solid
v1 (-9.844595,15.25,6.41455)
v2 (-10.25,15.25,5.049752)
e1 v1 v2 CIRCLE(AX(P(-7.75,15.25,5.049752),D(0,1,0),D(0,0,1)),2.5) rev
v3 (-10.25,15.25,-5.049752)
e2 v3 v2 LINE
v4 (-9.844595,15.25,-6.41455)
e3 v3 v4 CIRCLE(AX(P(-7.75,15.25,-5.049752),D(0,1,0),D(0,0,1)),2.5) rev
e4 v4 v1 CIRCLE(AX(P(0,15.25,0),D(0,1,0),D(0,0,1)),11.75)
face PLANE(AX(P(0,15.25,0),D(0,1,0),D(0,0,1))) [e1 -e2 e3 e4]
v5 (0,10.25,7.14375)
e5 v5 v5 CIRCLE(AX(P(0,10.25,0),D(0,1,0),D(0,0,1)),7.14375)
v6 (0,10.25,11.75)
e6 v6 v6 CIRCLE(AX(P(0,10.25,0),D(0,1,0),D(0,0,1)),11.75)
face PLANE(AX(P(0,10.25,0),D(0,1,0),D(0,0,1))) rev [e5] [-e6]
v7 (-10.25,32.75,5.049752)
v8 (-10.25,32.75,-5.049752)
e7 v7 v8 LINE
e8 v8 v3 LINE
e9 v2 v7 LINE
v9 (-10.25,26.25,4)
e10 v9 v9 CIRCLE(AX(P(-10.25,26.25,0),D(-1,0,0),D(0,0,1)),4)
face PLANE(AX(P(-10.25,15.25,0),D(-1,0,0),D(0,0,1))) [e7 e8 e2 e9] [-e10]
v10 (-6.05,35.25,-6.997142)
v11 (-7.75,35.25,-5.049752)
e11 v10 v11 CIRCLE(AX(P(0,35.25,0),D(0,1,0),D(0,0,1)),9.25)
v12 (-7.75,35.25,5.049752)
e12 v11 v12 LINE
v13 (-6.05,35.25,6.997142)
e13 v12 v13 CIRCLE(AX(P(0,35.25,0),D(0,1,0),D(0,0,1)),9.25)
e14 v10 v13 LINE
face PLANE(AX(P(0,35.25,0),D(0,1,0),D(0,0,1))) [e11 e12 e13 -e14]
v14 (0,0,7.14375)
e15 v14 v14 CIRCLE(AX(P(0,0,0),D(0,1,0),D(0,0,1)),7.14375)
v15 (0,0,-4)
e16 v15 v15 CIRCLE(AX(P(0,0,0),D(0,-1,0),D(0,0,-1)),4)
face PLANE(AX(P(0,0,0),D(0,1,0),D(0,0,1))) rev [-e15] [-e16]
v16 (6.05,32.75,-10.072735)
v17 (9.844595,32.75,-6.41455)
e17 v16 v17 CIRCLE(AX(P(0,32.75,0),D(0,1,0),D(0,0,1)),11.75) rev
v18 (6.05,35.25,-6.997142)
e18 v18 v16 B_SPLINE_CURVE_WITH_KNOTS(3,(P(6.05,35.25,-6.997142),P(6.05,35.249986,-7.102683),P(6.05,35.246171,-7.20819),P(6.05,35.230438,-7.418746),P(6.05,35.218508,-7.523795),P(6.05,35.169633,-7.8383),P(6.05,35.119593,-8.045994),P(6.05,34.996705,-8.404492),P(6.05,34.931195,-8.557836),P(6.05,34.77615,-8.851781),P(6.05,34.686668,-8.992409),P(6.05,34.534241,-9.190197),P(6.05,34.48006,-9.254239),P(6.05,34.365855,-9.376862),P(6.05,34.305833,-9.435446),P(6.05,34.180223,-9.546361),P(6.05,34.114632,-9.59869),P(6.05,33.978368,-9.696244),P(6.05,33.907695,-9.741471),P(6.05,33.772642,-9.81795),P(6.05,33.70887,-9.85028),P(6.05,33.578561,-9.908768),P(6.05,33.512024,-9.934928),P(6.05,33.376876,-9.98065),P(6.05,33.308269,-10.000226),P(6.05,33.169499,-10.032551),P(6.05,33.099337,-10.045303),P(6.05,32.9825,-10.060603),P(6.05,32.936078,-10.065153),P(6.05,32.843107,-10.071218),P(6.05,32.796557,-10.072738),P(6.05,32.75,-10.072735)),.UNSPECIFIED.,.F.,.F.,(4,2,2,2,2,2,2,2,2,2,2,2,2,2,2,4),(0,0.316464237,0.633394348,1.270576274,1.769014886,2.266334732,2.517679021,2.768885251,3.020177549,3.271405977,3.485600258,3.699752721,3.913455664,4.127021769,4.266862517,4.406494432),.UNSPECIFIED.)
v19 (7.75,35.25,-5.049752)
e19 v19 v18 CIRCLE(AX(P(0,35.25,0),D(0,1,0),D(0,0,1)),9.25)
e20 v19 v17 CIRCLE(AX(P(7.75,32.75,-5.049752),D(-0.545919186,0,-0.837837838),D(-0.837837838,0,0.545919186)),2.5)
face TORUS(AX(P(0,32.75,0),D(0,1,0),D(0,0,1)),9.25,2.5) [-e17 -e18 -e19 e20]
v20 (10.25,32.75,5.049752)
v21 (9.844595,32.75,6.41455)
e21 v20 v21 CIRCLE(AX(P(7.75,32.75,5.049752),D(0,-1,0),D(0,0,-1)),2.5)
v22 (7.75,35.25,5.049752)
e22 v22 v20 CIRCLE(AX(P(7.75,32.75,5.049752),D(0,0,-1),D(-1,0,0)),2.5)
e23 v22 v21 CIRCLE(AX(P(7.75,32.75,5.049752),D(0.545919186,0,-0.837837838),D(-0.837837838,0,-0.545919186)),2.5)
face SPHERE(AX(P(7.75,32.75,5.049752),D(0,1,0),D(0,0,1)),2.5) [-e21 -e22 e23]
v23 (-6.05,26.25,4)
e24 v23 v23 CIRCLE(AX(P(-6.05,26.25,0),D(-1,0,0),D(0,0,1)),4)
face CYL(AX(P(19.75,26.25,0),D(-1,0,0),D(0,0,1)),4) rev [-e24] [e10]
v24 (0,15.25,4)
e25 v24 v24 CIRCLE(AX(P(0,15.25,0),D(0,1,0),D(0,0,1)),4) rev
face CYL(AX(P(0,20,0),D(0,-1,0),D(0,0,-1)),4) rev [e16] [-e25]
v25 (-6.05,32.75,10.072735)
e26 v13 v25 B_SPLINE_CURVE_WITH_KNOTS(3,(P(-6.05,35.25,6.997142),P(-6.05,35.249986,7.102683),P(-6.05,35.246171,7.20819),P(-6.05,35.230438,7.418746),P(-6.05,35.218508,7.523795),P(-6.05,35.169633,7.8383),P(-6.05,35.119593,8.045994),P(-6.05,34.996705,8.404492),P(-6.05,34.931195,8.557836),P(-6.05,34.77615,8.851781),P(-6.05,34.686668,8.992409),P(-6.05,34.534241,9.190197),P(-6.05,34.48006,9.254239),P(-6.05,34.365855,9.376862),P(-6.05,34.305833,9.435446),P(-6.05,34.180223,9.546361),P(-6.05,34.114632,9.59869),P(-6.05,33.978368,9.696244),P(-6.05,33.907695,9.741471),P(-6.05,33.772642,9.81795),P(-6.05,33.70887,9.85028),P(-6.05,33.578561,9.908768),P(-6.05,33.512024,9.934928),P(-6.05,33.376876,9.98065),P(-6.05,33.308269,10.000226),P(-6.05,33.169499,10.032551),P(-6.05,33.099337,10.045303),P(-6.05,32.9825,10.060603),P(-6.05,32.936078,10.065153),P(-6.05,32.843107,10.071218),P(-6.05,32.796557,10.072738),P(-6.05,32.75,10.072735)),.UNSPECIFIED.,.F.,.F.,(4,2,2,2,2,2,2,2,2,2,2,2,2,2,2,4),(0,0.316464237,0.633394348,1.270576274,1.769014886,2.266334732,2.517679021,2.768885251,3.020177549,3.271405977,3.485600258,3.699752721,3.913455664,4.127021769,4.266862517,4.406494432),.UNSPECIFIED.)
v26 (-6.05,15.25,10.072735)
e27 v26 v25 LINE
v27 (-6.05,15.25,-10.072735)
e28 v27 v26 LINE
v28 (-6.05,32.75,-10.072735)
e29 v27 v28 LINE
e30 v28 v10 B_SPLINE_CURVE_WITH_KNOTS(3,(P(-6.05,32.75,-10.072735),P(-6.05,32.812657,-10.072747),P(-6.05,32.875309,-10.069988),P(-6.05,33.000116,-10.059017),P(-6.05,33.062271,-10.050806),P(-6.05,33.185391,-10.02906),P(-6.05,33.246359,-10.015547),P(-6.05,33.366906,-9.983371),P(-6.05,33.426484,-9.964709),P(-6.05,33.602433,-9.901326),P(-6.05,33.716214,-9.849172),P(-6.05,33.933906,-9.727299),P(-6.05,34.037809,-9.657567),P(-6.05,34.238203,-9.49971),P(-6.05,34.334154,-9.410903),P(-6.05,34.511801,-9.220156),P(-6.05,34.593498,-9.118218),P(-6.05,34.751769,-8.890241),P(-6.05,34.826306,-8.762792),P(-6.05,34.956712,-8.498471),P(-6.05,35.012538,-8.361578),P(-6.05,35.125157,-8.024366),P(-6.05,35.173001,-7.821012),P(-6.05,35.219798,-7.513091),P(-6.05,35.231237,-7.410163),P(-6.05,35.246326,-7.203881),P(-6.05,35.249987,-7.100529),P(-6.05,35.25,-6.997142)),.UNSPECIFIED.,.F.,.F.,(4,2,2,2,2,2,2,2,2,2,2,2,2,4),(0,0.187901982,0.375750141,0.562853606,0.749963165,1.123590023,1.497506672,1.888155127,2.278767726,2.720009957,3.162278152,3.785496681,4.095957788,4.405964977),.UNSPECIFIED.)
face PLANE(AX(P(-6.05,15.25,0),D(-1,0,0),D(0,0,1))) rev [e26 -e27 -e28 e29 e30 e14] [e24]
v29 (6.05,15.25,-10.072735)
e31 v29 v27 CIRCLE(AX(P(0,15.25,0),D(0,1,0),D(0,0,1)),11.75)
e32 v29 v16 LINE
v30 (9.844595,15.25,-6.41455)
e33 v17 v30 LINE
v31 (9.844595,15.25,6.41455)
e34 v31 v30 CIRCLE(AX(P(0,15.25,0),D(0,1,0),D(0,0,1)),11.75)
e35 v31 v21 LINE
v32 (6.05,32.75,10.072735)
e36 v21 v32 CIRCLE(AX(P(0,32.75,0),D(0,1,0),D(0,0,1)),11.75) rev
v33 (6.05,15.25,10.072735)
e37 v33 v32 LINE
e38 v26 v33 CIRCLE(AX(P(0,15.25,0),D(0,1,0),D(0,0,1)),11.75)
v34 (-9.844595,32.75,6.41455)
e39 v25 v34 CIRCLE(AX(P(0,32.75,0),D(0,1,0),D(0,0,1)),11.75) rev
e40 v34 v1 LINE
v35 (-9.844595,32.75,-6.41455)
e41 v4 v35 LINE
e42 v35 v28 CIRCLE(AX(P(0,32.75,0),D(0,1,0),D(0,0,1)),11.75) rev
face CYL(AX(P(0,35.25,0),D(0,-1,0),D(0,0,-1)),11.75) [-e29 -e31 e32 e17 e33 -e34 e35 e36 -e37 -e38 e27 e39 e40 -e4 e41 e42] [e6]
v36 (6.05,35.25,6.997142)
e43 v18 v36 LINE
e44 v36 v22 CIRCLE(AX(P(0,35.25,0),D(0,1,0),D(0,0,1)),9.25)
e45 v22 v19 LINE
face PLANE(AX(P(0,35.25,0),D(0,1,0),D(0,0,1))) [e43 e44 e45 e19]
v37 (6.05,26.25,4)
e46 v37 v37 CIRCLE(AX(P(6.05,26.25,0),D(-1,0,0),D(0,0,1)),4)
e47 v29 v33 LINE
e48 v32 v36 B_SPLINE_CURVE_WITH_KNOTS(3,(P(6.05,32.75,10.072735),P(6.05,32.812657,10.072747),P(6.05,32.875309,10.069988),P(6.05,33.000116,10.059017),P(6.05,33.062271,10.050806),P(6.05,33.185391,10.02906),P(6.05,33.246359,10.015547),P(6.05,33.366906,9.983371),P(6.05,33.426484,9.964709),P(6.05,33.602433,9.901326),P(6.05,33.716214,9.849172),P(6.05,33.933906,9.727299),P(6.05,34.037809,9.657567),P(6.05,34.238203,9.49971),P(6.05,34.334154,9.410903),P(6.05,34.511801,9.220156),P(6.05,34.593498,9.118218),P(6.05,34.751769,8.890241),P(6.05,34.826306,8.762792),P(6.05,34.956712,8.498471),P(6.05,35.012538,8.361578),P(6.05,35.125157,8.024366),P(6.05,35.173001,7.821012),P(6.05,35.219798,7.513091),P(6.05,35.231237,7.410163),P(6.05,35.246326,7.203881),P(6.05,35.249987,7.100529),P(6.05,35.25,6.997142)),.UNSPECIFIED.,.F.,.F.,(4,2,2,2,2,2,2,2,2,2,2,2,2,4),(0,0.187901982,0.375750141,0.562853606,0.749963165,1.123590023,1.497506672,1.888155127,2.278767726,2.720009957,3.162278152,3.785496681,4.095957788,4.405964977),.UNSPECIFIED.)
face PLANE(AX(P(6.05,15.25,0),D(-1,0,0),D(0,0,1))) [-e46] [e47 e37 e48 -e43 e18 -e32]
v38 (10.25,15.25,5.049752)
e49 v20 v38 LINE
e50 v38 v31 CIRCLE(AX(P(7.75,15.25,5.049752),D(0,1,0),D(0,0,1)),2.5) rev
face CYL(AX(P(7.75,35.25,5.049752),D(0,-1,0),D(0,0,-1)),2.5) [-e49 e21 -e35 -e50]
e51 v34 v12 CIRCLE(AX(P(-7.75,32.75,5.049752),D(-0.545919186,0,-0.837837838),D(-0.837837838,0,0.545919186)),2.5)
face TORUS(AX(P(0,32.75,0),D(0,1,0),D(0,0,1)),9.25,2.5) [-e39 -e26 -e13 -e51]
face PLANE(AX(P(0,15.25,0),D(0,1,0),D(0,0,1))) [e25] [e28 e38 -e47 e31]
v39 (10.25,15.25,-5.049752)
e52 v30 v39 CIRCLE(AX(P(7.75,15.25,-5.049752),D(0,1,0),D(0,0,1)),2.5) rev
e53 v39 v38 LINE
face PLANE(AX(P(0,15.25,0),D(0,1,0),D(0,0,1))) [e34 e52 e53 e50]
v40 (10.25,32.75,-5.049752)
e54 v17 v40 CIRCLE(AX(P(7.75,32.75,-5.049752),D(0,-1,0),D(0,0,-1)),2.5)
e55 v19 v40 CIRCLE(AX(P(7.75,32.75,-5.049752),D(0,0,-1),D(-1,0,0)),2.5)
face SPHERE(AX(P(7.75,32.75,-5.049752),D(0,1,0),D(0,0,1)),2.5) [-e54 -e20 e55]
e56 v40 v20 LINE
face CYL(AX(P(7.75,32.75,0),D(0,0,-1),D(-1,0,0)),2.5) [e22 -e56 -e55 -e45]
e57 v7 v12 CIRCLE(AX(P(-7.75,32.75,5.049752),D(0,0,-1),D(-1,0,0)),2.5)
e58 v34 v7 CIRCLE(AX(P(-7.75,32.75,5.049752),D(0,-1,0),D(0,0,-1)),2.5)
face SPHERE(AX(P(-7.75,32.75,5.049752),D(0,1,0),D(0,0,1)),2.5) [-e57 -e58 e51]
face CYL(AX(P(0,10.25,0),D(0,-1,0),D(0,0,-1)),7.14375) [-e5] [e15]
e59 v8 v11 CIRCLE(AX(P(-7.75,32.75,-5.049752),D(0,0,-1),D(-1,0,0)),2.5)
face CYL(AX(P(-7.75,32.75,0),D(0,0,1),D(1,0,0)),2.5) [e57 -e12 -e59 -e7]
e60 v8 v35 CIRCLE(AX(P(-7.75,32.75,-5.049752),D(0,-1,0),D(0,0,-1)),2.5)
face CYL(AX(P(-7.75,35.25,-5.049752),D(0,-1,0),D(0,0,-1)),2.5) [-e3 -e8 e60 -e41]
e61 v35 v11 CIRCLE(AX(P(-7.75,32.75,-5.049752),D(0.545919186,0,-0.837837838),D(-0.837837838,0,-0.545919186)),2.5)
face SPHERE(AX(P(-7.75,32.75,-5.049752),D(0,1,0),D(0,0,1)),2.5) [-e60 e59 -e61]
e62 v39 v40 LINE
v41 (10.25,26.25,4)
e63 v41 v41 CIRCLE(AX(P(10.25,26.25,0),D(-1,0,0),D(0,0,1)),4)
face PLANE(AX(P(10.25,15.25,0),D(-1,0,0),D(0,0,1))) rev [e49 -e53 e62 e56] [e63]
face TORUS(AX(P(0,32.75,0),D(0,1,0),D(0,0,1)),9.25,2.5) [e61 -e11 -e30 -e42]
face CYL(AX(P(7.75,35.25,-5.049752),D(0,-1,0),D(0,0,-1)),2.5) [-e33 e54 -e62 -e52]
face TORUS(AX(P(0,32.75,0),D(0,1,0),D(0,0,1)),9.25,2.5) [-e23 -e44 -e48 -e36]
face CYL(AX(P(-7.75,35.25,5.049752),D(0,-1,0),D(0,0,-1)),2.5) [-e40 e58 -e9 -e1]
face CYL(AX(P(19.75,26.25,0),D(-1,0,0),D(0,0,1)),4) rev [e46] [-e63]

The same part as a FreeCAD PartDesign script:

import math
import FreeCAD as App
import Part
import Sketcher


def edges_at(feature, points):
    """Names of the edges that pass closest to the given points."""
    edges = feature.Shape.Edges
    near = lambda p: min(range(len(edges)), key=lambda i: edges[i].distToShape(Part.Vertex(*p))[0])
    return sorted({f"Edge{near(p) + 1}" for p in points})

doc = App.newDocument("Part")
params = doc.addObject("Spreadsheet::Sheet", "Params")
for row, (alias, value) in enumerate([
    ("pad1_length", "10.25 mm"),
    ("sketch2_diameter", "23.5 mm"),
    ("pad2_length", "25 mm"),
    ("sketch3_diameter", "8 mm"),
    ("pocket1_length", "20 mm"),
    ("sketch4_radius", "11.75 mm"),
    ("pocket2_length", "20 mm"),
    ("sketch5_diameter", "8 mm"),
    ("pocket3_length", "30 mm"),
    ("fillet_radius", "2.5 mm"),
    ("fillet2_radius", "2.5 mm"),
], start=1):
    params.set(f"A{row}", alias)
    params.set(f"B{row}", "=" + value)
    params.setAlias(f"B{row}", alias)

body = doc.addObject("PartDesign::Body", "Body")

sketch1 = body.newObject("Sketcher::SketchObject", "Sketch")
sketch1.AttachmentSupport = (doc.getObject("XZ_Plane"), [""])
sketch1.MapMode = "FlatFace"
sketch1.addGeometry(Part.Circle(App.Vector(0, 0, 0), App.Vector(0, 0, 1), 7.14375), False)
sketch1.addConstraint([
    Sketcher.Constraint("Coincident", 0, 3, -1, 1),
    Sketcher.Constraint("Diameter", 0, 14.2875),
])
pad1 = body.newObject("PartDesign::Pad", "Pad")
pad1.Profile = sketch1
pad1.setExpression("Length", "Params.pad1_length")
pad1.Reversed = True

sketch2 = body.newObject("Sketcher::SketchObject", "Sketch001")
sketch2.AttachmentSupport = (doc.getObject("XZ_Plane"), [""])
sketch2.MapMode = "FlatFace"
sketch2.AttachmentOffset = App.Placement(App.Vector(0, 0, -10.25), App.Rotation())
sketch2.addGeometry(Part.Circle(App.Vector(0, 0, 0), App.Vector(0, 0, 1), 11.75), False)
sketch2.addConstraint([
    Sketcher.Constraint("Coincident", 0, 3, -1, 1),
    Sketcher.Constraint("Diameter", 0, 23.5),
])
sketch2.setExpression("Constraints[1]", "Params.sketch2_diameter")
pad2 = body.newObject("PartDesign::Pad", "Pad001")
pad2.Profile = sketch2
pad2.setExpression("Length", "Params.pad2_length")
pad2.Reversed = True

sketch3 = body.newObject("Sketcher::SketchObject", "Sketch002")
sketch3.AttachmentSupport = (doc.getObject("XZ_Plane"), [""])
sketch3.MapMode = "FlatFace"
sketch3.addGeometry(Part.Circle(App.Vector(0, 0, 0), App.Vector(0, 0, 1), 4), False)
sketch3.addConstraint([
    Sketcher.Constraint("Coincident", 0, 3, -1, 1),
    Sketcher.Constraint("Diameter", 0, 8.0),
])
sketch3.setExpression("Constraints[1]", "Params.sketch3_diameter")
pocket1 = body.newObject("PartDesign::Pocket", "Pocket")
pocket1.Profile = sketch3
pocket1.setExpression("Length", "Params.pocket1_length")

sketch4 = body.newObject("Sketcher::SketchObject", "Sketch003")
sketch4.AttachmentSupport = (doc.getObject("XZ_Plane"), [""])
sketch4.MapMode = "FlatFace"
sketch4.AttachmentOffset = App.Placement(App.Vector(0, 0, -15.25), App.Rotation())
sketch4.addGeometry([
    Part.ArcOfCircle(Part.Circle(App.Vector(0, 0, 0), App.Vector(0, 0, 1), 11.75), math.radians(-120.990344), math.radians(-59.009656)),
    Part.LineSegment(App.Vector(-6.05, -10.072735, 0), App.Vector(-6.05, 10.072735, 0)),
    Part.ArcOfCircle(Part.Circle(App.Vector(0, 0, 0), App.Vector(0, 0, 1), 11.75), math.radians(59.009656), math.radians(120.990344)),
    Part.LineSegment(App.Vector(6.05, 10.072735, 0), App.Vector(6.05, -10.072735, 0)),
    Part.LineSegment(App.Vector(-10.25, 5.744563, 0), App.Vector(-10.25, -5.744563, 0)),
    Part.ArcOfCircle(Part.Circle(App.Vector(0, 0, 0), App.Vector(0, 0, 1), 11.75), math.radians(150.731762), math.radians(209.268238)),
    Part.ArcOfCircle(Part.Circle(App.Vector(0, 0, 0), App.Vector(0, 0, 1), 11.75), math.radians(-29.268238), math.radians(0)),
    Part.LineSegment(App.Vector(10.25, -5.744563, 0), App.Vector(10.25, 5.744563, 0)),
    Part.ArcOfCircle(Part.Circle(App.Vector(0, 0, 0), App.Vector(0, 0, 1), 11.75), math.radians(0), math.radians(29.268238)),
], False)
sketch4.addConstraint([
    Sketcher.Constraint("Coincident", 0, 1, 1, 1),
    Sketcher.Constraint("Coincident", 1, 2, 2, 2),
    Sketcher.Constraint("Coincident", 2, 1, 3, 1),
    Sketcher.Constraint("Coincident", 3, 2, 0, 2),
    Sketcher.Constraint("Coincident", 4, 1, 5, 1),
    Sketcher.Constraint("Coincident", 5, 2, 4, 2),
    Sketcher.Constraint("Coincident", 6, 1, 7, 1),
    Sketcher.Constraint("Coincident", 7, 2, 8, 2),
    Sketcher.Constraint("Tangent", 8, 1, 6, 2),
    Sketcher.Constraint("Vertical", 1),
    Sketcher.Constraint("Vertical", 3),
    Sketcher.Constraint("Vertical", 4),
    Sketcher.Constraint("Vertical", 7),
    Sketcher.Constraint("Coincident", 0, 3, -1, 1),
    Sketcher.Constraint("Coincident", 2, 3, -1, 1),
    Sketcher.Constraint("Coincident", 5, 3, -1, 1),
    Sketcher.Constraint("Coincident", 6, 3, -1, 1),
    Sketcher.Constraint("Equal", 0, 2),
    Sketcher.Constraint("Equal", 2, 5),
    Sketcher.Constraint("Equal", 5, 6),
    Sketcher.Constraint("Equal", 6, 8),
    Sketcher.Constraint("PointOnObject", 8, 1, -1),
    Sketcher.Constraint("Horizontal", 1, 2, 2, 1),
    Sketcher.Constraint("Horizontal", 5, 2, 6, 1),
    Sketcher.Constraint("Radius", 0, 11.75),
    Sketcher.Constraint("DistanceX", 4, 1, 1, 2, 4.2),
    Sketcher.Constraint("DistanceX", 7, 2, 8, 1, 1.5),
])
sketch4.setExpression("Constraints[24]", "Params.sketch4_radius")
pocket2 = body.newObject("PartDesign::Pocket", "Pocket001")
pocket2.Profile = sketch4
pocket2.setExpression("Length", "Params.pocket2_length")

sketch5 = body.newObject("Sketcher::SketchObject", "Sketch004")
sketch5.AttachmentSupport = (doc.getObject("YZ_Plane"), [""])
sketch5.MapMode = "FlatFace"
sketch5.AttachmentOffset = App.Placement(App.Vector(0, 0, -10.25), App.Rotation())
sketch5.addGeometry(Part.Circle(App.Vector(26.25, 0, 0), App.Vector(0, 0, 1), 4), False)
sketch5.addConstraint([
    Sketcher.Constraint("PointOnObject", 0, 3, -1),
    Sketcher.Constraint("Diameter", 0, 8.0),
    Sketcher.Constraint("DistanceX", -1, 1, 0, 3, 26.25),
])
sketch5.setExpression("Constraints[1]", "Params.sketch5_diameter")
pocket3 = body.newObject("PartDesign::Pocket", "Pocket002")
pocket3.Profile = sketch5
pocket3.setExpression("Length", "Params.pocket3_length")
pocket3.Reversed = True
doc.recompute()

fillet = body.newObject("PartDesign::Fillet", "Fillet")
fillet.Base = (pocket3, edges_at(pocket3, [
    (10.25, 25.25, -5.745),
    (10.25, 25.25, 5.745),
    (-10.25, 25.25, -5.745),
    (-10.25, 25.25, 5.745),
]))
fillet.setExpression("Radius", "Params.fillet_radius")
doc.recompute()

fillet2 = body.newObject("PartDesign::Fillet", "Fillet001")
fillet2.Base = (fillet, edges_at(fillet, [
    (-8.155, 35.25, -8.459),
    (8.155, 35.25, 8.459),
    (8.155, 35.25, -8.459),
    (-8.155, 35.25, 8.459),
    (10.25, 35.25, 0),
    (10.147, 35.25, -5.762),
    (10.147, 35.25, 5.762),
    (-10.25, 35.25, 0),
    (-10.147, 35.25, -5.762),
    (-10.147, 35.25, 5.762),
]))
fillet2.setExpression("Radius", "Params.fillet2_radius")

doc.recompute()
